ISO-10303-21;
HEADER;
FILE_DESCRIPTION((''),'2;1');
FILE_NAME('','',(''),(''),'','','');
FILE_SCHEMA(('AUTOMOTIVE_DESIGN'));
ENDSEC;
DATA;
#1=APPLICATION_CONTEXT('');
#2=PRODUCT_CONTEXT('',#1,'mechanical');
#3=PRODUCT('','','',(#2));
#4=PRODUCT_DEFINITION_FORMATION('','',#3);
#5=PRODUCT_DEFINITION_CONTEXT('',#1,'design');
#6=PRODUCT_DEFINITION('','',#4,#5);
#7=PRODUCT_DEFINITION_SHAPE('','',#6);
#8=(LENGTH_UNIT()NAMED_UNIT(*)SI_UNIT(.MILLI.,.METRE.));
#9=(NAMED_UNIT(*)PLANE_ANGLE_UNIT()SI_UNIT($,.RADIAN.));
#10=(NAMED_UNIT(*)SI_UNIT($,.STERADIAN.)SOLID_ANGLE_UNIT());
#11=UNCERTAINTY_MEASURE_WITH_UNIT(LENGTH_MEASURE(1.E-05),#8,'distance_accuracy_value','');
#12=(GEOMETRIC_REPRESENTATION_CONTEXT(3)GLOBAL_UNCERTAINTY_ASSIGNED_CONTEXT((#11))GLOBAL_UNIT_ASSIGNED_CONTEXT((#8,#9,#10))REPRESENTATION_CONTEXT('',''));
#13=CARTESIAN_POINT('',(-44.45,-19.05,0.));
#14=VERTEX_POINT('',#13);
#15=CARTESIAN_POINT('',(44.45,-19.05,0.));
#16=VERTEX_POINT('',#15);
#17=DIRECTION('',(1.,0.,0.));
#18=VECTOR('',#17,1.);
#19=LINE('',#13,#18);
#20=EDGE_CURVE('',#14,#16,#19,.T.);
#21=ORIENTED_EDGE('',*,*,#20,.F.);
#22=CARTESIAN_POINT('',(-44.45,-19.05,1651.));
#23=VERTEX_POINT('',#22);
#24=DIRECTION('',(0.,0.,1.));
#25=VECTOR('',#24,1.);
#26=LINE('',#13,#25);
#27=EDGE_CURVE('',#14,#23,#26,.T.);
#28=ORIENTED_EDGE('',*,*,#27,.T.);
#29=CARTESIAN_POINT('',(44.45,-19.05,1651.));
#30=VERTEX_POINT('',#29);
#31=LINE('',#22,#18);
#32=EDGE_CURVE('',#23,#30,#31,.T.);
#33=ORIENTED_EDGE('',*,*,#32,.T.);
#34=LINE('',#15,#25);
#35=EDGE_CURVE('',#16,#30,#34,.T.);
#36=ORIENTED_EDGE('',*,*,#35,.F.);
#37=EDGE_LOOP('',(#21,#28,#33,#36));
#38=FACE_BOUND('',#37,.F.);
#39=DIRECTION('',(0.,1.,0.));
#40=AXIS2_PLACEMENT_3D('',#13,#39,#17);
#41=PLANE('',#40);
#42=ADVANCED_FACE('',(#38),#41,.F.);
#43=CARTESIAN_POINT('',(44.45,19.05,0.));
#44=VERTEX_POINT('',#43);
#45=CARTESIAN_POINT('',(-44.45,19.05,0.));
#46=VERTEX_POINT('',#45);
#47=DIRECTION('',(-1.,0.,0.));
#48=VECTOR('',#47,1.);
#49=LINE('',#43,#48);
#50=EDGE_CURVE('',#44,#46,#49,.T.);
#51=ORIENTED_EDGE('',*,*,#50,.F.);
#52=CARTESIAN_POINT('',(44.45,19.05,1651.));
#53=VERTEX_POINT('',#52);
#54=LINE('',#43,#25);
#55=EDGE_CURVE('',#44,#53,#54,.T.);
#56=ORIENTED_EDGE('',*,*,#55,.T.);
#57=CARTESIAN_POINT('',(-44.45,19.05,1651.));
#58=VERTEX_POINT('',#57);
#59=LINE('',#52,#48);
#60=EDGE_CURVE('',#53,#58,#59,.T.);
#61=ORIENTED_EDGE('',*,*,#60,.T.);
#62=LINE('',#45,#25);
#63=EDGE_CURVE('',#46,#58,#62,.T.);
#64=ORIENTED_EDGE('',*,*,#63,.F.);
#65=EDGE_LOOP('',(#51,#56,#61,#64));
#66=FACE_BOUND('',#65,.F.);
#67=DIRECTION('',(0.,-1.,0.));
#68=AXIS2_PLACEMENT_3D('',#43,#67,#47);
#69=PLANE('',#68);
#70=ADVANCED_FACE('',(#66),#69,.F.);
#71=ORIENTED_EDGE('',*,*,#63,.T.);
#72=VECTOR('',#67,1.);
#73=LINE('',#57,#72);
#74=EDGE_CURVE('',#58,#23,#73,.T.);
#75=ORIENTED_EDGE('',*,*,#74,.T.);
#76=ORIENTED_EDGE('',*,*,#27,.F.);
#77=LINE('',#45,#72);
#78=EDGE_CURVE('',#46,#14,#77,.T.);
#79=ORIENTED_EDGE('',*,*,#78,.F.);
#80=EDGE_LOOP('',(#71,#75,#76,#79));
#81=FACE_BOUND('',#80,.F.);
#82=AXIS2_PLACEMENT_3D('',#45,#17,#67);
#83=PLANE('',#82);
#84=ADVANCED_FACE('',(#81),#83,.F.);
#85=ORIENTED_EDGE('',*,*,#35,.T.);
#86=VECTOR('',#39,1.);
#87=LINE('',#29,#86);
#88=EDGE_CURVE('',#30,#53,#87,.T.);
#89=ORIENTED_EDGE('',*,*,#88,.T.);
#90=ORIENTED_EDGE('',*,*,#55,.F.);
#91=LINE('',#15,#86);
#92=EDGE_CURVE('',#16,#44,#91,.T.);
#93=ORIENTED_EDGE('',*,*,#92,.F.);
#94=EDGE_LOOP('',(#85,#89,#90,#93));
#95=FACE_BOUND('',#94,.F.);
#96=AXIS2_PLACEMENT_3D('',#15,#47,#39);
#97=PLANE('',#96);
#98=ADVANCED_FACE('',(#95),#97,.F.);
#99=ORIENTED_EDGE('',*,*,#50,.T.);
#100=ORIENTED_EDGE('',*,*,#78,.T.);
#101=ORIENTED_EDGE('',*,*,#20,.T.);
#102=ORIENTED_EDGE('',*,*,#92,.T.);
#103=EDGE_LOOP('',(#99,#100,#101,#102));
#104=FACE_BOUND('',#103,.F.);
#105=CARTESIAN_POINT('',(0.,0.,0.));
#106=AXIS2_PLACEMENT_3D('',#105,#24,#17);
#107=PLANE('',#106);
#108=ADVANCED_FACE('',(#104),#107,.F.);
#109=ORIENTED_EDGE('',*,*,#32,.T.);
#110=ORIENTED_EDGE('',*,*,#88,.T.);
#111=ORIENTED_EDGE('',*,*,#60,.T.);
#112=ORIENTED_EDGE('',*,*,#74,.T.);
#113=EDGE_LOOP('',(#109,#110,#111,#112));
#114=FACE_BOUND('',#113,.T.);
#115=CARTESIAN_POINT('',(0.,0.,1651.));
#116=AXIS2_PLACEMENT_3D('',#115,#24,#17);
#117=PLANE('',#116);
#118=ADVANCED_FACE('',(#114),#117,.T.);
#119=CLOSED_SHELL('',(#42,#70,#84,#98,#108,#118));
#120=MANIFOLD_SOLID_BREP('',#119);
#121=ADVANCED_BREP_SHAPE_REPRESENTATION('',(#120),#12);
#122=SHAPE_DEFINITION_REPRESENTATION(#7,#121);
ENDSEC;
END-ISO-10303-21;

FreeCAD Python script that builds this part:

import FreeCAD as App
import Part
import Sketcher

V = App.Vector
Q = App.Units.Quantity

doc = App.newDocument("Part")
params = doc.addObject("Spreadsheet::Sheet", "Params")
for row, (alias, value) in enumerate([
    ("sketch1_width", "3.5 in"),
    ("sketch1_height", "1.5 in"),
    ("pad1_length", "65 in"),
], start=1):
    params.set(f"A{row}", alias)
    params.set(f"B{row}", "=" + value)
    params.setAlias(f"B{row}", alias)

body = doc.addObject("PartDesign::Body", "Body")

# Sketch on XY plane
sketch1 = body.newObject("Sketcher::SketchObject", "Sketch")
sketch1.AttachmentSupport = (doc.getObject("XY_Plane"), [""])
sketch1.MapMode = "FlatFace"
sketch1.addGeometry([
    Part.LineSegment(V(-44.45, 19.05, 0), V(-44.45, -19.05, 0)),
    Part.LineSegment(V(-44.45, -19.05, 0), V(44.45, -19.05, 0)),
    Part.LineSegment(V(44.45, -19.05, 0), V(44.45, 19.05, 0)),
    Part.LineSegment(V(44.45, 19.05, 0), V(-44.45, 19.05, 0)),
], False)
sketch1.addConstraint([
    Sketcher.Constraint("Coincident", 0, 2, 1, 1),
    Sketcher.Constraint("Coincident", 1, 2, 2, 1),
    Sketcher.Constraint("Coincident", 2, 2, 3, 1),
    Sketcher.Constraint("Coincident", 3, 2, 0, 1),
    Sketcher.Constraint("Vertical", 0),
    Sketcher.Constraint("Horizontal", 1),
    Sketcher.Constraint("Vertical", 2),
    Sketcher.Constraint("Horizontal", 3),
    Sketcher.Constraint("Symmetric", 0, 2, 2, 2, -1, 1),
    Sketcher.Constraint("DistanceX", 1, 1, 1, 2, Q("3.5 in")),
    Sketcher.Constraint("DistanceY", 0, 2, 0, 1, Q("1.5 in")),
])
sketch1.setExpression("Constraints[9]", "Params.sketch1_width")
sketch1.setExpression("Constraints[10]", "Params.sketch1_height")
pad1 = body.newObject("PartDesign::Pad", "Pad")
pad1.Profile = sketch1
pad1.setExpression("Length", "Params.pad1_length")

doc.recompute()
